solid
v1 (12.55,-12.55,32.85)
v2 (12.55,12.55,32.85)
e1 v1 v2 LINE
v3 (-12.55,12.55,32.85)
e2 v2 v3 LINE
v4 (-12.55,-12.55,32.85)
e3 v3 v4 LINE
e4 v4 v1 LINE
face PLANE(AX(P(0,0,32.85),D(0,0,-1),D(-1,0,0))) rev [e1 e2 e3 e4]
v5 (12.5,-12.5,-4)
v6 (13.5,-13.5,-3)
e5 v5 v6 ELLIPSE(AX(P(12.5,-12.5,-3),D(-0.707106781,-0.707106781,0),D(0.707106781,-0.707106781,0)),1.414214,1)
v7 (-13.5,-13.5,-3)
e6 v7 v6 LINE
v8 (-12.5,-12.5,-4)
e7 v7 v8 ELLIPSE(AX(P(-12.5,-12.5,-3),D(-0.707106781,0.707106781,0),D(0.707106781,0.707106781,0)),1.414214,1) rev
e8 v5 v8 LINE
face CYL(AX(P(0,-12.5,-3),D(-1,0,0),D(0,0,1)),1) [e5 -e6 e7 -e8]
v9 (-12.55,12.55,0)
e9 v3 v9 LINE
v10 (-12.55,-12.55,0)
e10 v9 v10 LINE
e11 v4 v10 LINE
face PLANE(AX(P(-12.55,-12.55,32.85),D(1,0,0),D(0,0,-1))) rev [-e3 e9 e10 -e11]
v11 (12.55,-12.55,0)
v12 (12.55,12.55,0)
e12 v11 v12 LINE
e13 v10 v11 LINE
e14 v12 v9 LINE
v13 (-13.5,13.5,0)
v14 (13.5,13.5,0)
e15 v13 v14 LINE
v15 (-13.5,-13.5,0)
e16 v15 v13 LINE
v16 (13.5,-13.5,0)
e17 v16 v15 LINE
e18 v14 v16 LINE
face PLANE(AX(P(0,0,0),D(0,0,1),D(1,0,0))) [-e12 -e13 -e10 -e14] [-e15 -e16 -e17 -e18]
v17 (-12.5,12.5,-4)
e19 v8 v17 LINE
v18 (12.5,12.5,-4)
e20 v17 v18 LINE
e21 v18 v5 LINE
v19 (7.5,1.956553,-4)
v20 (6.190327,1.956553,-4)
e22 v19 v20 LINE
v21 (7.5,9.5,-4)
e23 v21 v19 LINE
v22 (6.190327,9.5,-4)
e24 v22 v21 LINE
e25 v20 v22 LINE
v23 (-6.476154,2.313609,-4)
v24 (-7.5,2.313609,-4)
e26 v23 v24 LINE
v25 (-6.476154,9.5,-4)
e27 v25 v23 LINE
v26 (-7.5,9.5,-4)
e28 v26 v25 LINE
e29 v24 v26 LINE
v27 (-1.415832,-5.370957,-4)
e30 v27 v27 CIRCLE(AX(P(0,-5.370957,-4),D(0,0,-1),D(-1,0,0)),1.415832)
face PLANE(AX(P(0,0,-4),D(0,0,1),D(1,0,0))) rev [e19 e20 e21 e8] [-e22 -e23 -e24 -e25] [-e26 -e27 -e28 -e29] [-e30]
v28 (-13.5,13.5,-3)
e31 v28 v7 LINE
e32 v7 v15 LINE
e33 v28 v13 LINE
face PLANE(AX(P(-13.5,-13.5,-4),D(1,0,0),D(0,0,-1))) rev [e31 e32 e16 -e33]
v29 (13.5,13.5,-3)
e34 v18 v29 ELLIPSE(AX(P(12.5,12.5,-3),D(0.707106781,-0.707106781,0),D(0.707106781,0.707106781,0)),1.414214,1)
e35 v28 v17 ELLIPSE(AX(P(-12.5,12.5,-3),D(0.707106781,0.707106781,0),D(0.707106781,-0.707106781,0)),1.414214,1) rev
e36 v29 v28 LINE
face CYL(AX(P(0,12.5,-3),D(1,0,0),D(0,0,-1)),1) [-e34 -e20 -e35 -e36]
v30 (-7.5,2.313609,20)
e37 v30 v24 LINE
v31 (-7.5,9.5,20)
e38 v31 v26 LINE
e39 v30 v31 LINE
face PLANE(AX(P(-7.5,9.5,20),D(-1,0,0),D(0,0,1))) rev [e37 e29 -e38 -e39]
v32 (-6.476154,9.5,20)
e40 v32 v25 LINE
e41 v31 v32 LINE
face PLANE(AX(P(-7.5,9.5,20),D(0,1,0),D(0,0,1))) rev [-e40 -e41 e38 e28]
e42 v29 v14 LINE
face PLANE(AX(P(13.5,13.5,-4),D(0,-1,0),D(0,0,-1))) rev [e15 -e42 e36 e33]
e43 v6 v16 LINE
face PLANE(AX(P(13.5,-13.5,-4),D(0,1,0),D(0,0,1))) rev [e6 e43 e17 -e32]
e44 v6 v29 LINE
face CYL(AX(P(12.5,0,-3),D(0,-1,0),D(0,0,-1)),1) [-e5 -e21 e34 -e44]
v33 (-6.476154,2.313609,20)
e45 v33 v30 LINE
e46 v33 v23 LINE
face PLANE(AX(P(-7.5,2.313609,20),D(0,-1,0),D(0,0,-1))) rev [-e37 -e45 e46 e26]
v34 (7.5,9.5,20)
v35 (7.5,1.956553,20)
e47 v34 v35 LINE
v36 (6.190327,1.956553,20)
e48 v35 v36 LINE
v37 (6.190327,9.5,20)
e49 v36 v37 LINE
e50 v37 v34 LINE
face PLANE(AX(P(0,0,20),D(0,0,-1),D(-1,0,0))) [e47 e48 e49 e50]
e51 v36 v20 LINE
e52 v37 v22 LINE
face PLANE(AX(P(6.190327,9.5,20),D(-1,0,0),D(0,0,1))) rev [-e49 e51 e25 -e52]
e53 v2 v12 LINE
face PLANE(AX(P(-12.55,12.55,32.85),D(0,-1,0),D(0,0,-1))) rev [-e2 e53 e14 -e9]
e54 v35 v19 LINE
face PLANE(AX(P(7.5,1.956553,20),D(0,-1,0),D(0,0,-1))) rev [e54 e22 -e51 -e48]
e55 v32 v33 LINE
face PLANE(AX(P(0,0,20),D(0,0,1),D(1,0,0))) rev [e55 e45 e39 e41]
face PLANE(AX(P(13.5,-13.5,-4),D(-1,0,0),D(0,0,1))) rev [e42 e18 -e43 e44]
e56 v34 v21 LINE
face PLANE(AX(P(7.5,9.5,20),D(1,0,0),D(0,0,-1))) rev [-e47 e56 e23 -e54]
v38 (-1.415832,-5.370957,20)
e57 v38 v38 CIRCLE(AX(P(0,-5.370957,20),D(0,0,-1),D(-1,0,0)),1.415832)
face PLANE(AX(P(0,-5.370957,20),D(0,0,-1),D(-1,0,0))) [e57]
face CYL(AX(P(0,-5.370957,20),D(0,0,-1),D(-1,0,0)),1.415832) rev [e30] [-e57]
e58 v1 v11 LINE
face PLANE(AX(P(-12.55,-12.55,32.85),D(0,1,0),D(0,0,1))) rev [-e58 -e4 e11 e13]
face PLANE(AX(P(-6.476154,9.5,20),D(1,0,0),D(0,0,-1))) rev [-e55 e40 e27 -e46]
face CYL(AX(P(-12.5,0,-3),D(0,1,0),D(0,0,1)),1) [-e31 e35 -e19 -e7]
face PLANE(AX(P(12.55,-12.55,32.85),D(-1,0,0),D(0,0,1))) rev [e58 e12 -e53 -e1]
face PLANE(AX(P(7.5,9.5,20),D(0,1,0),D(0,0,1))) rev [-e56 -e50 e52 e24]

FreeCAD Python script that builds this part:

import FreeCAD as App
import Part
import Sketcher
from FreeCAD import Vector
Q = App.Units.Quantity


def edges_at(feature, points):
    """Names of the edges that pass closest to the given points."""
    edges = feature.Shape.Edges
    near = lambda p: min(range(len(edges)), key=lambda i: edges[i].distToShape(Part.Vertex(*p))[0])
    return sorted({f"Edge{near(p) + 1}" for p in points})

doc = App.newDocument("Part")
body = doc.addObject("PartDesign::Body", "Body")

# Sketch on XY plane
sketch1 = body.newObject("Sketcher::SketchObject", "Sketch")
sketch1.AttachmentSupport = (doc.getObject("XY_Plane"), [""])
sketch1.MapMode = "FlatFace"
sketch1.addGeometry([
    Part.LineSegment(Vector(-13, 13, 0), Vector(-13, -13, 0)),
    Part.LineSegment(Vector(-13, -13, 0), Vector(13, -13, 0)),
    Part.LineSegment(Vector(13, -13, 0), Vector(13, 13, 0)),
    Part.LineSegment(Vector(13, 13, 0), Vector(-13, 13, 0)),
], False)
sketch1.addConstraint([
    Sketcher.Constraint("Coincident", 0, 2, 1, 1),
    Sketcher.Constraint("Coincident", 1, 2, 2, 1),
    Sketcher.Constraint("Coincident", 2, 2, 3, 1),
    Sketcher.Constraint("Coincident", 3, 2, 0, 1),
    Sketcher.Constraint("Vertical", 0),
    Sketcher.Constraint("Horizontal", 1),
    Sketcher.Constraint("Vertical", 2),
    Sketcher.Constraint("Horizontal", 3),
    Sketcher.Constraint("Symmetric", 0, 2, 2, 2, -1, 1),
    Sketcher.Constraint("Equal", 3, 0),
    Sketcher.Constraint("DistanceX", 1, 1, 1, 2, Q("25.1 mm")),
])
pad1 = body.newObject("PartDesign::Pad", "Pad")
pad1.Profile = sketch1
pad1.Length = 32.85

# Sketch on XY plane
sketch2 = body.newObject("Sketcher::SketchObject", "Sketch001")
sketch2.AttachmentSupport = (doc.getObject("XY_Plane"), [""])
sketch2.MapMode = "FlatFace"
sketch2.addGeometry([
    Part.LineSegment(Vector(14, 14, 0), Vector(14, -14, 0)),
    Part.LineSegment(Vector(14, -14, 0), Vector(-14, -14, 0)),
    Part.LineSegment(Vector(-14, -14, 0), Vector(-14, 14, 0)),
    Part.LineSegment(Vector(-14, 14, 0), Vector(14, 14, 0)),
], False)
sketch2.addConstraint([
    Sketcher.Constraint("Coincident", 0, 2, 1, 1),
    Sketcher.Constraint("Coincident", 1, 2, 2, 1),
    Sketcher.Constraint("Coincident", 2, 2, 3, 1),
    Sketcher.Constraint("Coincident", 3, 2, 0, 1),
    Sketcher.Constraint("Vertical", 0),
    Sketcher.Constraint("Horizontal", 1),
    Sketcher.Constraint("Vertical", 2),
    Sketcher.Constraint("Horizontal", 3),
    Sketcher.Constraint("Symmetric", 0, 2, 2, 2, -1, 1),
    Sketcher.Constraint("Equal", 3, 0),
    Sketcher.Constraint("DistanceX", 1, 2, 1, 1, Q("27 mm")),
])
pad2 = body.newObject("PartDesign::Pad", "Pad001")
pad2.Profile = sketch2
pad2.Length = 4
pad2.Reversed = True
doc.recompute()

fillet = body.newObject("PartDesign::Fillet", "Fillet")
fillet.Base = (pad2, edges_at(pad2, [
    (-13.5, 0, -4),
    (0, 13.5, -4),
    (13.5, 0, -4),
    (0, -13.5, -4),
]))
fillet.Radius = 1

# Sketch on XY plane
sketch3 = body.newObject("Sketcher::SketchObject", "Sketch002")
sketch3.AttachmentSupport = (doc.getObject("XY_Plane"), [""])
sketch3.MapMode = "FlatFace"
sketch3.AttachmentOffset = App.Placement(Vector(0, 0, -4), App.Rotation())
sketch3.addGeometry([
    Part.Circle(Vector(0, -5.4, 0), Vector(0, 0, 1), 1.4),  # 0
    Part.LineSegment(Vector(7.5, 9.5, 0), Vector(7.5, 2, 0)),  # 1
    Part.LineSegment(Vector(7.5, 2, 0), Vector(6.2, 2, 0)),  # 2
    Part.LineSegment(Vector(6.2, 2, 0), Vector(6.2, 9.5, 0)),  # 3
    Part.LineSegment(Vector(6.2, 9.5, 0), Vector(7.5, 9.5, 0)),  # 4
    Part.LineSegment(Vector(-6.5, 9.5, 0), Vector(-6.5, 2.3, 0)),  # 5
    Part.LineSegment(Vector(-6.5, 2.3, 0), Vector(-7.5, 2.3, 0)),  # 6
    Part.LineSegment(Vector(-7.5, 2.3, 0), Vector(-7.5, 9.5, 0)),  # 7
    Part.LineSegment(Vector(-7.5, 9.5, 0), Vector(-6.5, 9.5, 0)),  # 8
], False)
sketch3.addConstraint([
    Sketcher.Constraint("Coincident", 1, 2, 2, 1),
    Sketcher.Constraint("Coincident", 2, 2, 3, 1),
    Sketcher.Constraint("Coincident", 3, 2, 4, 1),
    Sketcher.Constraint("Coincident", 4, 2, 1, 1),
    Sketcher.Constraint("Coincident", 5, 2, 6, 1),
    Sketcher.Constraint("Coincident", 6, 2, 7, 1),
    Sketcher.Constraint("Coincident", 7, 2, 8, 1),
    Sketcher.Constraint("Coincident", 8, 2, 5, 1),
    Sketcher.Constraint("Vertical", 1),
    Sketcher.Constraint("Horizontal", 2),
    Sketcher.Constraint("Vertical", 3),
    Sketcher.Constraint("Horizontal", 4),
    Sketcher.Constraint("Vertical", 5),
    Sketcher.Constraint("Horizontal", 6),
    Sketcher.Constraint("Vertical", 7),
    Sketcher.Constraint("Horizontal", 8),
    Sketcher.Constraint("Symmetric", 4, 2, 7, 2, -2),
    Sketcher.Constraint("PointOnObject", 0, 3, -2),
    Sketcher.Constraint("DistanceX", 6, 2, 1, 2, Q("15 mm")),
    Sketcher.Constraint("DistanceY", -1, 1, 3, 2, Q("9.5 mm")),
    Sketcher.Constraint("Diameter", 0, Q("2.831664 mm")),
    Sketcher.Constraint("DistanceY", 5, 2, 5, 1, Q("7.186391 mm")),
    Sketcher.Constraint("DistanceX", 2, 2, 2, 1, Q("1.309673 mm")),
    Sketcher.Constraint("DistanceX", 6, 2, 6, 1, Q("1.023846 mm")),
    Sketcher.Constraint("DistanceY", 1, 2, 1, 1, Q("7.543447 mm")),
    Sketcher.Constraint("DistanceY", 0, 3, 1, 2, Q("7.32751 mm")),
])
pocket1 = body.newObject("PartDesign::Pocket", "Pocket")
pocket1.Profile = sketch3
pocket1.Length = 24
pocket1.Reversed = True

doc.recompute()
